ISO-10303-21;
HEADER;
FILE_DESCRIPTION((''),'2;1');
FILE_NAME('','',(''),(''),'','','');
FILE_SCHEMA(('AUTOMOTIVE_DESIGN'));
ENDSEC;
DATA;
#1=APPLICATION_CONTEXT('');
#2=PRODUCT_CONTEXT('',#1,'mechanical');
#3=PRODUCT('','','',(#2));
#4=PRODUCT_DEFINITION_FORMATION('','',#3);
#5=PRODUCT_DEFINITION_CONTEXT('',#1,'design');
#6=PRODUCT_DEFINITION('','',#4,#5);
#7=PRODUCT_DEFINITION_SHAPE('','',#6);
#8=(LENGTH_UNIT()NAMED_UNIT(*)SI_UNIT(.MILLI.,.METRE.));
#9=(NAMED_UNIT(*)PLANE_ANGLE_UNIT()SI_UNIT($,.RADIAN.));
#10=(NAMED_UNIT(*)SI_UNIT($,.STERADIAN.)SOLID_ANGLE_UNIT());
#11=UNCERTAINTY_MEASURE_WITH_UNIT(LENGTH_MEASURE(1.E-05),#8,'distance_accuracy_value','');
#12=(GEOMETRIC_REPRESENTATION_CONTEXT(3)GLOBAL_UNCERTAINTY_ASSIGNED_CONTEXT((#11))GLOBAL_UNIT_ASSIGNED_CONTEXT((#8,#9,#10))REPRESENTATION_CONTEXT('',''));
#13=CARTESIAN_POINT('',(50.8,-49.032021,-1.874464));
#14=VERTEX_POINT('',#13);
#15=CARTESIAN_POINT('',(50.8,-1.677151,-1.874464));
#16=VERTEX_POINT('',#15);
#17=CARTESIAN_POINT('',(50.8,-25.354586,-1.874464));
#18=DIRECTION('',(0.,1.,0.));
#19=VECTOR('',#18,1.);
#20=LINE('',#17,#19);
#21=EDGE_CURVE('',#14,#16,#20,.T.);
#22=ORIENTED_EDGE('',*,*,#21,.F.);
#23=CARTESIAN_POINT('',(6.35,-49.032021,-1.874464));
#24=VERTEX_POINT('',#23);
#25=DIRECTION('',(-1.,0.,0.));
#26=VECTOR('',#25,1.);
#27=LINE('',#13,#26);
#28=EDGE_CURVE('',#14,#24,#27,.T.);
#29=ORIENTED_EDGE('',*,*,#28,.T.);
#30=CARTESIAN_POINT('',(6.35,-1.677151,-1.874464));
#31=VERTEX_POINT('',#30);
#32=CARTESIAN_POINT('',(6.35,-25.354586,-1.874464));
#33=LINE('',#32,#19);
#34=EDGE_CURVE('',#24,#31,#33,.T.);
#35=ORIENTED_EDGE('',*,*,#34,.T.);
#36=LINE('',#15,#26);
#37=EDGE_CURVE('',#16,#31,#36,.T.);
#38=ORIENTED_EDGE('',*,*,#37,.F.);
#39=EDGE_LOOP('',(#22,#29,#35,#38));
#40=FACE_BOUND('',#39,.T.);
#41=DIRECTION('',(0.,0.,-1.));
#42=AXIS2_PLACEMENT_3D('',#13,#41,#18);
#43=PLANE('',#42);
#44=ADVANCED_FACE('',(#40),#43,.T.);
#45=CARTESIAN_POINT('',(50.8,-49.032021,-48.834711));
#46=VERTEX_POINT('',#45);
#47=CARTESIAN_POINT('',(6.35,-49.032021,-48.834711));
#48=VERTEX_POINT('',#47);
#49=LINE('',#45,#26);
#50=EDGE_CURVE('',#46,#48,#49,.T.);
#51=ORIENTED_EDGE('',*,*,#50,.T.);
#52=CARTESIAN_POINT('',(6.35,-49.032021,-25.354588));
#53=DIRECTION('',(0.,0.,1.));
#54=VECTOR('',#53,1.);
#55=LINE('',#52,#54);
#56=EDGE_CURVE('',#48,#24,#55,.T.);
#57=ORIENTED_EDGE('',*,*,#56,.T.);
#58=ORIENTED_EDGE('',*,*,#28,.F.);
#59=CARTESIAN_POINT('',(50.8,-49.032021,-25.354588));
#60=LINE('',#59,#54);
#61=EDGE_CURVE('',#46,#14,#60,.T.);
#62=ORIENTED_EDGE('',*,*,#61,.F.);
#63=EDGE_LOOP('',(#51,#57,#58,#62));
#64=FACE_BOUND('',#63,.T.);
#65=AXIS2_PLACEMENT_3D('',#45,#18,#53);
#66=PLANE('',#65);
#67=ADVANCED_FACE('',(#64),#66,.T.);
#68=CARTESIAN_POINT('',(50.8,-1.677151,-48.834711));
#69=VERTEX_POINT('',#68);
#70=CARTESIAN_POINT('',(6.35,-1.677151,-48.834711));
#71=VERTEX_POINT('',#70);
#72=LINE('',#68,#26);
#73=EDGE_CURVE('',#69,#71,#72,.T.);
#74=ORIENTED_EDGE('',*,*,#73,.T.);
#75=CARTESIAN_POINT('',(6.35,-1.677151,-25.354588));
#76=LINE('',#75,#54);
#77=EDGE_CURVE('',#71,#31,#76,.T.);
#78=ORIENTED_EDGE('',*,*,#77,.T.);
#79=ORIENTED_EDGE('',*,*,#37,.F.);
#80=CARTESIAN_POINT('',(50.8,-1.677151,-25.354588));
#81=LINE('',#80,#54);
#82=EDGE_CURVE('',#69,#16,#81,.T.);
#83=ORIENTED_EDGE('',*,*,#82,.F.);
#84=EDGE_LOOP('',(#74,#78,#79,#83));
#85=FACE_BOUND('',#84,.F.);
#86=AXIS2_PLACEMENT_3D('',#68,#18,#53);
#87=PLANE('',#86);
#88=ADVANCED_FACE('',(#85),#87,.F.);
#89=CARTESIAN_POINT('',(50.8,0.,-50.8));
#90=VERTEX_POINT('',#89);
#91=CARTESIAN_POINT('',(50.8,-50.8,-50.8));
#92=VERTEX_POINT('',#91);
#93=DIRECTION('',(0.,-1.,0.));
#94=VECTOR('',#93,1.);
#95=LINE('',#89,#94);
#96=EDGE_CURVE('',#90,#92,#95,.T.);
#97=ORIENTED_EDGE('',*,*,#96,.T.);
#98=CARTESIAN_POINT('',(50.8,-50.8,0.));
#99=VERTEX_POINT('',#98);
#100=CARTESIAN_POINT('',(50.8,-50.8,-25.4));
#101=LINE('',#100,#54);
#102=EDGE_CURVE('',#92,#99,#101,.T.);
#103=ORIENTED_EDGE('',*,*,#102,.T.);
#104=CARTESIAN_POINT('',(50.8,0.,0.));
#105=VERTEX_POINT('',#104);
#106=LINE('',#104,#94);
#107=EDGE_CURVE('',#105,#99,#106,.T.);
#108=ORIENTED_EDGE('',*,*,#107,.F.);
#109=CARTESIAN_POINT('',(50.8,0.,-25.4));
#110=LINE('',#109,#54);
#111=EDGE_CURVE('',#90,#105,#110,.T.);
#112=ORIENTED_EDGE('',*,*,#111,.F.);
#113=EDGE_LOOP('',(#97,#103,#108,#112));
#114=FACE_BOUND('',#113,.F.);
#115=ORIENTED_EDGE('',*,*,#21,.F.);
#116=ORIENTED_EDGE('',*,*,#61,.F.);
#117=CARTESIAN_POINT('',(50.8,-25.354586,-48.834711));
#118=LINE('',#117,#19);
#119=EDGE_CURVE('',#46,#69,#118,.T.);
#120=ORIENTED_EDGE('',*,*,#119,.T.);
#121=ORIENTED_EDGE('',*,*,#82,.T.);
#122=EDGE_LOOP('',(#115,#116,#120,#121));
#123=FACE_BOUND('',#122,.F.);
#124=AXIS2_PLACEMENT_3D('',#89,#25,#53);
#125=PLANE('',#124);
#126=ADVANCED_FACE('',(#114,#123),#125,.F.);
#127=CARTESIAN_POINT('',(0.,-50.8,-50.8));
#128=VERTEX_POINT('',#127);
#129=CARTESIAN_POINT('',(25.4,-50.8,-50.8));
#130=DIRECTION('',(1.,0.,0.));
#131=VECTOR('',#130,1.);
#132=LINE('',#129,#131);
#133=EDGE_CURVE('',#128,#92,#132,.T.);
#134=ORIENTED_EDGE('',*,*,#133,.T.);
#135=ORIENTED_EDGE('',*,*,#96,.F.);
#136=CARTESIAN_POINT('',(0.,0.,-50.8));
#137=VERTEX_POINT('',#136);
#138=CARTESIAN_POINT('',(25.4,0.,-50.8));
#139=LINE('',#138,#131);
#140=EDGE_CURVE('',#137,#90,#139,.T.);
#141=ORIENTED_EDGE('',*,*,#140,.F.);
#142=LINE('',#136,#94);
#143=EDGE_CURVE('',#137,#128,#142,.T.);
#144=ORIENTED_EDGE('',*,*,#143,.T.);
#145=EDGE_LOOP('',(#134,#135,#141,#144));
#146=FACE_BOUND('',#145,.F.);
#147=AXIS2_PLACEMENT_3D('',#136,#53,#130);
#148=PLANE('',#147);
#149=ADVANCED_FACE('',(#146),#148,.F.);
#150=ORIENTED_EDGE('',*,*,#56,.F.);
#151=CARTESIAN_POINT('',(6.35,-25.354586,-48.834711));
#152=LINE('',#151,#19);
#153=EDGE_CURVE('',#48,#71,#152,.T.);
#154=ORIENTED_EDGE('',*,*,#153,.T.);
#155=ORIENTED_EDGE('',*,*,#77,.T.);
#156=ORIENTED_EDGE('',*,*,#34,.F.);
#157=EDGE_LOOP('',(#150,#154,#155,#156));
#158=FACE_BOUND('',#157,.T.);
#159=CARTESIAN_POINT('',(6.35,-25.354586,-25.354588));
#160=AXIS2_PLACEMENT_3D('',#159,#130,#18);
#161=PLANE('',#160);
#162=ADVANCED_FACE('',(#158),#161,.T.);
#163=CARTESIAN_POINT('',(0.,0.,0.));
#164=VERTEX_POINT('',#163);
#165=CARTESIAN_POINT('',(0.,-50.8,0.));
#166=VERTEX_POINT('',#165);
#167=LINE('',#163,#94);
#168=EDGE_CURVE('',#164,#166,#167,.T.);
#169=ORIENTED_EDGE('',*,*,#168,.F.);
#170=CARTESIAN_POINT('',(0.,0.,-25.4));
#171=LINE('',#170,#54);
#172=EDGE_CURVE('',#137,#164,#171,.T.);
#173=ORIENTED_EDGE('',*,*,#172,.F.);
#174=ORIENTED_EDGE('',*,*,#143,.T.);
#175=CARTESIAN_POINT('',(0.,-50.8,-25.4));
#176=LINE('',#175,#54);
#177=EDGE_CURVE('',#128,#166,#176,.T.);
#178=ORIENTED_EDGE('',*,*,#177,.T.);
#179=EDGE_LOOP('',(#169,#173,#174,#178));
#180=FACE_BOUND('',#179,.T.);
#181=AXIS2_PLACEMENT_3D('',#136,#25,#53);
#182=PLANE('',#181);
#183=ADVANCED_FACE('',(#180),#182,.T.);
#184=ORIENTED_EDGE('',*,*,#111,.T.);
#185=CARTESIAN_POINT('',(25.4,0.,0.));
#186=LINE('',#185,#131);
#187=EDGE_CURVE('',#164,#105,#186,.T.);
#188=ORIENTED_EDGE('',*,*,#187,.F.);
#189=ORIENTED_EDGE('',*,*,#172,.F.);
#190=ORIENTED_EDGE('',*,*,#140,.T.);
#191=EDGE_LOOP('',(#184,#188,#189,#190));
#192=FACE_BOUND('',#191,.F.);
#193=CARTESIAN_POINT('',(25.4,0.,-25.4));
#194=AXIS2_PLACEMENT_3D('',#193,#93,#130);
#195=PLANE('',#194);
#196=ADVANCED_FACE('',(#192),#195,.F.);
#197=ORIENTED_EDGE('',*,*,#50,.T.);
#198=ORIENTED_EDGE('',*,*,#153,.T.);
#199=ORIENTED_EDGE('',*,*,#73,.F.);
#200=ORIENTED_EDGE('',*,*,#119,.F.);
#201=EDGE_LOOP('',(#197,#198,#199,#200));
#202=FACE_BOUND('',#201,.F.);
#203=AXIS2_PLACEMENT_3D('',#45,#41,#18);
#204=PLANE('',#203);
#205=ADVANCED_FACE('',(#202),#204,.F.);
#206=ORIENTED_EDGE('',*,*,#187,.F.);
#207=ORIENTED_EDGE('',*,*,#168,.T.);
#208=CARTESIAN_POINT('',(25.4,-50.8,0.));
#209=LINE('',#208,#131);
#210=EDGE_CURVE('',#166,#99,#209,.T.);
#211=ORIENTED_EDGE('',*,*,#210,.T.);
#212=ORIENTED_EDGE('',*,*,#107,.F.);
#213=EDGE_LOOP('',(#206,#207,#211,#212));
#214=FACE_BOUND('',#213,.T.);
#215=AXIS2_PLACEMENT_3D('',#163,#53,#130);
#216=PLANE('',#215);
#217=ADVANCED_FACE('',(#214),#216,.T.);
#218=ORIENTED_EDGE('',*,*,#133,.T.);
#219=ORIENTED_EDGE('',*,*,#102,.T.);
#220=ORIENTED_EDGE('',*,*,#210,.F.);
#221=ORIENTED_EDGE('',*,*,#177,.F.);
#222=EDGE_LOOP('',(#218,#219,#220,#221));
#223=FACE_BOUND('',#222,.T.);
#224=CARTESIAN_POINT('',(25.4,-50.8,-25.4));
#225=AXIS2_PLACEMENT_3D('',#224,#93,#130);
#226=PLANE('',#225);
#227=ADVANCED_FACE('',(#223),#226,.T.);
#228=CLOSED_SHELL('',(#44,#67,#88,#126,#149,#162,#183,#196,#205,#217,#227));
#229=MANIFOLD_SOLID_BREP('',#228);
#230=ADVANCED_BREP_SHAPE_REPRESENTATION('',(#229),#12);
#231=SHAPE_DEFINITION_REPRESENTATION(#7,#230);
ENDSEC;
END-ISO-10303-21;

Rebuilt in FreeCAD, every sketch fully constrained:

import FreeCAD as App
import Part
import Sketcher
Q = App.Units.Quantity

doc = App.newDocument("Part")
params = doc.addObject("Spreadsheet::Sheet", "Params")
for row, (alias, value) in enumerate([
    ("sketch1_width", "2 in"),
    ("pad1_length", "2 in"),
    ("sketch2_width", "1.826 in"),
    ("sketch2_height", "1.841 in"),
    ("pocket1_length", "1.75 in"),
    ("pocket2_length", "1.75 in"),
], start=1):
    params.set(f"A{row}", alias)
    params.set(f"B{row}", "=" + value)
    params.setAlias(f"B{row}", alias)

body = doc.addObject("PartDesign::Body", "Body")

# Sketch on XZ plane
sketch1 = doc.addObject("Sketcher::SketchObject", "Sketch")
body.addObject(sketch1)
sketch1.AttachmentSupport = (doc.XZ_Plane, [""])
sketch1.MapMode = "FlatFace"
sketch1.addGeometry(Part.LineSegment(App.Vector(0, 0, 0), App.Vector(0, -50.8, 0)), False)
sketch1.addGeometry(Part.LineSegment(App.Vector(0, -50.8, 0), App.Vector(50.8, -50.8, 0)), False)
sketch1.addGeometry(Part.LineSegment(App.Vector(50.8, -50.8, 0), App.Vector(50.8, 0, 0)), False)
sketch1.addGeometry(Part.LineSegment(App.Vector(50.8, 0, 0), App.Vector(0, 0, 0)), False)
sketch1.addConstraint(Sketcher.Constraint("Coincident", 0, 2, 1, 1))
sketch1.addConstraint(Sketcher.Constraint("Coincident", 1, 2, 2, 1))
sketch1.addConstraint(Sketcher.Constraint("Coincident", 2, 2, 3, 1))
sketch1.addConstraint(Sketcher.Constraint("Coincident", 3, 2, 0, 1))
sketch1.addConstraint(Sketcher.Constraint("Vertical", 0))
sketch1.addConstraint(Sketcher.Constraint("Horizontal", 1))
sketch1.addConstraint(Sketcher.Constraint("Vertical", 2))
sketch1.addConstraint(Sketcher.Constraint("Horizontal", 3))
sketch1.addConstraint(Sketcher.Constraint("Coincident", 3, 2, -1, 1))
sketch1.addConstraint(Sketcher.Constraint("Equal", 3, 0))
sketch1.addConstraint(Sketcher.Constraint("DistanceX", 1, 1, 1, 2, Q("2 in")))
sketch1.setExpression("Constraints[10]", "Params.sketch1_width")
pad1 = doc.addObject("PartDesign::Pad", "Pad")
body.addObject(pad1)
pad1.Profile = sketch1
pad1.setExpression("Length", "Params.pad1_length")

# Sketch on YZ plane
sketch2 = doc.addObject("Sketcher::SketchObject", "Sketch001")
body.addObject(sketch2)
sketch2.AttachmentSupport = (doc.YZ_Plane, [""])
sketch2.MapMode = "FlatFace"
sketch2.addGeometry(Part.LineSegment(App.Vector(-48.649487, -2.073311, 0), App.Vector(-48.649487, -48.834711, 0)), False)
sketch2.addGeometry(Part.LineSegment(App.Vector(-48.649487, -48.834711, 0), App.Vector(-2.269087, -48.834711, 0)), False)
sketch2.addGeometry(Part.LineSegment(App.Vector(-2.269087, -48.834711, 0), App.Vector(-2.269087, -2.073311, 0)), False)
sketch2.addGeometry(Part.LineSegment(App.Vector(-2.269087, -2.073311, 0), App.Vector(-48.649487, -2.073311, 0)), False)
sketch2.addConstraint(Sketcher.Constraint("Coincident", 0, 2, 1, 1))
sketch2.addConstraint(Sketcher.Constraint("Coincident", 1, 2, 2, 1))
sketch2.addConstraint(Sketcher.Constraint("Coincident", 2, 2, 3, 1))
sketch2.addConstraint(Sketcher.Constraint("Coincident", 3, 2, 0, 1))
sketch2.addConstraint(Sketcher.Constraint("Vertical", 0))
sketch2.addConstraint(Sketcher.Constraint("Horizontal", 1))
sketch2.addConstraint(Sketcher.Constraint("Vertical", 2))
sketch2.addConstraint(Sketcher.Constraint("Horizontal", 3))
sketch2.addConstraint(Sketcher.Constraint("DistanceX", 1, 1, 1, 2, Q("1.826 in")))
sketch2.addConstraint(Sketcher.Constraint("DistanceY", 0, 2, 0, 1, Q("1.841 in")))
sketch2.addConstraint(Sketcher.Constraint("DistanceY", 0, 2, -1, 1, Q("48.834711 mm")))
sketch2.addConstraint(Sketcher.Constraint("DistanceX", 0, 2, -1, 1, Q("48.649487 mm")))
sketch2.setExpression("Constraints[8]", "Params.sketch2_width")
sketch2.setExpression("Constraints[9]", "Params.sketch2_height")
pocket1 = doc.addObject("PartDesign::Pocket", "Pocket")
body.addObject(pocket1)
pocket1.Profile = sketch2
pocket1.setExpression("Length", "Params.pocket1_length")

# Sketch on YZ plane
sketch3 = doc.addObject("Sketcher::SketchObject", "Sketch002")
body.addObject(sketch3)
sketch3.AttachmentSupport = (doc.YZ_Plane, [""])
sketch3.MapMode = "FlatFace"
sketch3.AttachmentOffset = App.Placement(App.Vector(0, 0, 2 * 25.4), App.Rotation())
sketch3.addGeometry(Part.LineSegment(App.Vector(-49.032021, -1.874464, 0), App.Vector(-49.032021, -48.834711, 0)), False)
sketch3.addGeometry(Part.LineSegment(App.Vector(-49.032021, -48.834711, 0), App.Vector(-1.677151, -48.834711, 0)), False)
sketch3.addGeometry(Part.LineSegment(App.Vector(-1.677151, -48.834711, 0), App.Vector(-1.677151, -1.874464, 0)), False)
sketch3.addGeometry(Part.LineSegment(App.Vector(-1.677151, -1.874464, 0), App.Vector(-49.032021, -1.874464, 0)), False)
sketch3.addConstraint(Sketcher.Constraint("Coincident", 0, 2, 1, 1))
sketch3.addConstraint(Sketcher.Constraint("Coincident", 1, 2, 2, 1))
sketch3.addConstraint(Sketcher.Constraint("Coincident", 2, 2, 3, 1))
sketch3.addConstraint(Sketcher.Constraint("Coincident", 3, 2, 0, 1))
sketch3.addConstraint(Sketcher.Constraint("Vertical", 0))
sketch3.addConstraint(Sketcher.Constraint("Horizontal", 1))
sketch3.addConstraint(Sketcher.Constraint("Vertical", 2))
sketch3.addConstraint(Sketcher.Constraint("Horizontal", 3))
sketch3.addConstraint(Sketcher.Constraint("DistanceX", 1, 1, 1, 2, Q("47.35487 mm")))
sketch3.addConstraint(Sketcher.Constraint("DistanceY", 0, 2, 0, 1, Q("46.960247 mm")))
sketch3.addConstraint(Sketcher.Constraint("DistanceX", 0, 2, -1, 1, Q("49.032021 mm")))
sketch3.addConstraint(Sketcher.Constraint("DistanceY", 0, 2, -1, 1, Q("48.834711 mm")))
pocket2 = doc.addObject("PartDesign::Pocket", "Pocket001")
body.addObject(pocket2)
pocket2.Profile = sketch3
pocket2.setExpression("Length", "Params.pocket2_length")

doc.recompute()
